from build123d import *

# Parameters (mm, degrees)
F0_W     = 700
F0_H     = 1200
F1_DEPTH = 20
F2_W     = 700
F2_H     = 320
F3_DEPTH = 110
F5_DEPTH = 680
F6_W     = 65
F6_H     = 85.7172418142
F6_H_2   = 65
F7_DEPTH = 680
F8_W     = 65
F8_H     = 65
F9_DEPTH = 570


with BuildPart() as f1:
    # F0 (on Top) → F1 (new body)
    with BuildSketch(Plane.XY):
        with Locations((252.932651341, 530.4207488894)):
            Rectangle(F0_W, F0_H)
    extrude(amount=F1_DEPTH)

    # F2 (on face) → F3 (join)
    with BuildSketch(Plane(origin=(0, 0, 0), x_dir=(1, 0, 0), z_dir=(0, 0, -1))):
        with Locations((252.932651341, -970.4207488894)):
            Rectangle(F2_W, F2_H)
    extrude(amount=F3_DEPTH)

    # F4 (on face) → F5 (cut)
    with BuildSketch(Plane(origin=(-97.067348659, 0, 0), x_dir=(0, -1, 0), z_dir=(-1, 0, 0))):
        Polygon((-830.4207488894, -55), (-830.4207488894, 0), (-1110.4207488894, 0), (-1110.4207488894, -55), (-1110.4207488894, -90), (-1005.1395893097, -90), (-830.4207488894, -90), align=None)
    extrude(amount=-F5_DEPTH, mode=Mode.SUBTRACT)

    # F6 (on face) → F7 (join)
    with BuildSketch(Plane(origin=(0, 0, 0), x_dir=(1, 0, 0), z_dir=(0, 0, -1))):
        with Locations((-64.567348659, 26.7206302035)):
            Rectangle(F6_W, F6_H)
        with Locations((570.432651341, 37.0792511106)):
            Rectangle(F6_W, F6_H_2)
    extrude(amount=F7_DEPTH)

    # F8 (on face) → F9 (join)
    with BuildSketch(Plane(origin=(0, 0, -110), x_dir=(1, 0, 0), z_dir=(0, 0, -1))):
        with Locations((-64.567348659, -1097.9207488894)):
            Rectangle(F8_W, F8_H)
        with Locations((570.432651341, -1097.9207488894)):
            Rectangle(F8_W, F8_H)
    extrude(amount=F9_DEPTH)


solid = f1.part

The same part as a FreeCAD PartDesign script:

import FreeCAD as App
import Part
import Sketcher

V = App.Vector

doc = App.newDocument("Part")
body = doc.addObject("PartDesign::Body", "Body")

# Sketch on XY plane
sketch1 = body.newObject("Sketcher::SketchObject", "Sketch")
sketch1.AttachmentSupport = (doc.getObject("XY_Plane"), [""])
sketch1.MapMode = "FlatFace"
sketch1.addGeometry([
    Part.LineSegment(V(-97.067349, 1130.420749, 0), V(-97.067349, -69.579251, 0)),
    Part.LineSegment(V(-97.067349, -69.579251, 0), V(602.932651, -69.579251, 0)),
    Part.LineSegment(V(602.932651, -69.579251, 0), V(602.932651, 1130.420749, 0)),
    Part.LineSegment(V(602.932651, 1130.420749, 0), V(-97.067349, 1130.420749, 0)),
], False)
sketch1.addConstraint([
    Sketcher.Constraint("Coincident", 0, 2, 1, 1),
    Sketcher.Constraint("Coincident", 1, 2, 2, 1),
    Sketcher.Constraint("Coincident", 2, 2, 3, 1),
    Sketcher.Constraint("Coincident", 3, 2, 0, 1),
    Sketcher.Constraint("Vertical", 0),
    Sketcher.Constraint("Horizontal", 1),
    Sketcher.Constraint("Vertical", 2),
    Sketcher.Constraint("Horizontal", 3),
    Sketcher.Constraint("DistanceX", 1, 1, 1, 2, 700.0),
    Sketcher.Constraint("DistanceY", 0, 2, 0, 1, 1200.0),
    Sketcher.Constraint("DistanceX", 0, 2, -1, 1, 97.067349),
    Sketcher.Constraint("DistanceY", 0, 2, -1, 1, 69.579251),
])
pad1 = body.newObject("PartDesign::Pad", "Pad")
pad1.Profile = sketch1
pad1.Length = 20

# Sketch on XY plane
sketch2 = body.newObject("Sketcher::SketchObject", "Sketch001")
sketch2.AttachmentSupport = (doc.getObject("XY_Plane"), [""])
sketch2.MapMode = "FlatFace"
sketch2.addGeometry([
    Part.LineSegment(V(-97.067349, 810.420749, 0), V(-97.067349, 1130.420749, 0)),
    Part.LineSegment(V(-97.067349, 1130.420749, 0), V(602.932651, 1130.420749, 0)),
    Part.LineSegment(V(602.932651, 1130.420749, 0), V(602.932651, 810.420749, 0)),
    Part.LineSegment(V(602.932651, 810.420749, 0), V(-97.067349, 810.420749, 0)),
], False)
sketch2.addConstraint([
    Sketcher.Constraint("Coincident", 0, 2, 1, 1),
    Sketcher.Constraint("Coincident", 1, 2, 2, 1),
    Sketcher.Constraint("Coincident", 2, 2, 3, 1),
    Sketcher.Constraint("Coincident", 3, 2, 0, 1),
    Sketcher.Constraint("Vertical", 0),
    Sketcher.Constraint("Horizontal", 1),
    Sketcher.Constraint("Vertical", 2),
    Sketcher.Constraint("Horizontal", 3),
    Sketcher.Constraint("DistanceX", 1, 1, 1, 2, 700.0),
    Sketcher.Constraint("DistanceY", 0, 1, 0, 2, 320.0),
    Sketcher.Constraint("DistanceX", 0, 2, -1, 1, 97.067349),
    Sketcher.Constraint("DistanceY", -1, 1, 0, 2, 1130.420749),
])
pad2 = body.newObject("PartDesign::Pad", "Pad001")
pad2.Profile = sketch2
pad2.Length = 110
pad2.Reversed = True

# Sketch on YZ plane
sketch3 = body.newObject("Sketcher::SketchObject", "Sketch002")
sketch3.AttachmentSupport = (doc.getObject("YZ_Plane"), [""])
sketch3.MapMode = "FlatFace"
sketch3.AttachmentOffset = App.Placement(V(0, 0, -97.067349), App.Rotation())
sketch3.addGeometry([
    Part.LineSegment(V(830.420749, 0, 0), V(1110.420749, 0, 0)),
    Part.LineSegment(V(1110.420749, 0, 0), V(1110.420749, -90, 0)),
    Part.LineSegment(V(1110.420749, -90, 0), V(830.420749, -90, 0)),
    Part.LineSegment(V(830.420749, -90, 0), V(830.420749, 0, 0)),
], False)
sketch3.addConstraint([
    Sketcher.Constraint("Coincident", 0, 2, 1, 1),
    Sketcher.Constraint("Coincident", 1, 2, 2, 1),
    Sketcher.Constraint("Coincident", 2, 2, 3, 1),
    Sketcher.Constraint("Coincident", 3, 2, 0, 1),
    Sketcher.Constraint("Horizontal", 0),
    Sketcher.Constraint("Vertical", 1),
    Sketcher.Constraint("Horizontal", 2),
    Sketcher.Constraint("Vertical", 3),
    Sketcher.Constraint("PointOnObject", 0, 2, -1),
    Sketcher.Constraint("DistanceX", 0, 1, 0, 2, 280.0),
    Sketcher.Constraint("DistanceY", 1, 2, 1, 1, 90.0),
    Sketcher.Constraint("DistanceX", -1, 1, 0, 2, 1110.420749),
])
pocket1 = body.newObject("PartDesign::Pocket", "Pocket")
pocket1.Profile = sketch3
pocket1.Length = 680
pocket1.Reversed = True

# Sketch on XY plane
sketch4 = body.newObject("Sketcher::SketchObject", "Sketch003")
sketch4.AttachmentSupport = (doc.getObject("XY_Plane"), [""])
sketch4.MapMode = "FlatFace"
sketch4.addGeometry([
    Part.LineSegment(V(-97.067349, -69.579251, 0), V(-97.067349, 16.137991, 0)),  # 0
    Part.LineSegment(V(-97.067349, 16.137991, 0), V(-32.067349, 16.137991, 0)),  # 1
    Part.LineSegment(V(-32.067349, 16.137991, 0), V(-32.067349, -69.579251, 0)),  # 2
    Part.LineSegment(V(-32.067349, -69.579251, 0), V(-97.067349, -69.579251, 0)),  # 3
    Part.LineSegment(V(537.932651, -69.579251, 0), V(537.932651, -4.579251, 0)),  # 4
    Part.LineSegment(V(537.932651, -4.579251, 0), V(602.932651, -4.579251, 0)),  # 5
    Part.LineSegment(V(602.932651, -4.579251, 0), V(602.932651, -69.579251, 0)),  # 6
    Part.LineSegment(V(602.932651, -69.579251, 0), V(537.932651, -69.579251, 0)),  # 7
], False)
sketch4.addConstraint([
    Sketcher.Constraint("Coincident", 0, 2, 1, 1),
    Sketcher.Constraint("Coincident", 1, 2, 2, 1),
    Sketcher.Constraint("Coincident", 2, 2, 3, 1),
    Sketcher.Constraint("Coincident", 3, 2, 0, 1),
    Sketcher.Constraint("Coincident", 4, 2, 5, 1),
    Sketcher.Constraint("Coincident", 5, 2, 6, 1),
    Sketcher.Constraint("Coincident", 6, 2, 7, 1),
    Sketcher.Constraint("Coincident", 7, 2, 4, 1),
    Sketcher.Constraint("Vertical", 0),
    Sketcher.Constraint("Horizontal", 1),
    Sketcher.Constraint("Vertical", 2),
    Sketcher.Constraint("Horizontal", 3),
    Sketcher.Constraint("Vertical", 4),
    Sketcher.Constraint("Horizontal", 5),
    Sketcher.Constraint("Vertical", 6),
    Sketcher.Constraint("Horizontal", 7),
    Sketcher.Constraint("Horizontal", 3, 2, 6, 2),
    Sketcher.Constraint("Equal", 3, 5),
    Sketcher.Constraint("Equal", 7, 4),
    Sketcher.Constraint("DistanceX", 1, 1, 1, 2, 65.0),
    Sketcher.Constraint("DistanceX", 1, 2, 4, 2, 570.0),
    Sketcher.Constraint("DistanceY", 0, 1, 0, 2, 85.717242),
    Sketcher.Constraint("DistanceX", 0, 2, -1, 1, 97.067349),
    Sketcher.Constraint("DistanceY", -1, 1, 0, 2, 16.137991),
])
pad3 = body.newObject("PartDesign::Pad", "Pad002")
pad3.Profile = sketch4
pad3.Length = 680
pad3.Reversed = True

# Sketch on XY plane
sketch5 = body.newObject("Sketcher::SketchObject", "Sketch004")
sketch5.AttachmentSupport = (doc.getObject("XY_Plane"), [""])
sketch5.MapMode = "FlatFace"
sketch5.AttachmentOffset = App.Placement(V(0, 0, -110), App.Rotation())
sketch5.addGeometry([
    Part.LineSegment(V(-97.067349, 1065.420749, 0), V(-97.067349, 1130.420749, 0)),  # 0
    Part.LineSegment(V(-97.067349, 1130.420749, 0), V(-32.067349, 1130.420749, 0)),  # 1
    Part.LineSegment(V(-32.067349, 1130.420749, 0), V(-32.067349, 1065.420749, 0)),  # 2
    Part.LineSegment(V(-32.067349, 1065.420749, 0), V(-97.067349, 1065.420749, 0)),  # 3
    Part.LineSegment(V(537.932651, 1065.420749, 0), V(537.932651, 1130.420749, 0)),  # 4
    Part.LineSegment(V(537.932651, 1130.420749, 0), V(602.932651, 1130.420749, 0)),  # 5
    Part.LineSegment(V(602.932651, 1130.420749, 0), V(602.932651, 1065.420749, 0)),  # 6
    Part.LineSegment(V(602.932651, 1065.420749, 0), V(537.932651, 1065.420749, 0)),  # 7
], False)
sketch5.addConstraint([
    Sketcher.Constraint("Coincident", 0, 2, 1, 1),
    Sketcher.Constraint("Coincident", 1, 2, 2, 1),
    Sketcher.Constraint("Coincident", 2, 2, 3, 1),
    Sketcher.Constraint("Coincident", 3, 2, 0, 1),
    Sketcher.Constraint("Coincident", 4, 2, 5, 1),
    Sketcher.Constraint("Coincident", 5, 2, 6, 1),
    Sketcher.Constraint("Coincident", 6, 2, 7, 1),
    Sketcher.Constraint("Coincident", 7, 2, 4, 1),
    Sketcher.Constraint("Vertical", 0),
    Sketcher.Constraint("Horizontal", 1),
    Sketcher.Constraint("Vertical", 2),
    Sketcher.Constraint("Horizontal", 3),
    Sketcher.Constraint("Vertical", 4),
    Sketcher.Constraint("Horizontal", 5),
    Sketcher.Constraint("Vertical", 6),
    Sketcher.Constraint("Horizontal", 7),
    Sketcher.Constraint("Horizontal", 1, 2, 4, 2),
    Sketcher.Constraint("Horizontal", 3, 2, 6, 2),
    Sketcher.Constraint("Equal", 3, 5),
    Sketcher.Constraint("Equal", 7, 0),
    Sketcher.Constraint("DistanceX", 1, 1, 1, 2, 65.0),
    Sketcher.Constraint("DistanceX", 1, 2, 4, 2, 570.0),
    Sketcher.Constraint("DistanceX", 0, 2, -1, 1, 97.067349),
    Sketcher.Constraint("DistanceY", -1, 1, 0, 2, 1130.420749),
])
pad4 = body.newObject("PartDesign::Pad", "Pad003")
pad4.Profile = sketch5
pad4.Length = 570
pad4.Reversed = True

doc.recompute()
